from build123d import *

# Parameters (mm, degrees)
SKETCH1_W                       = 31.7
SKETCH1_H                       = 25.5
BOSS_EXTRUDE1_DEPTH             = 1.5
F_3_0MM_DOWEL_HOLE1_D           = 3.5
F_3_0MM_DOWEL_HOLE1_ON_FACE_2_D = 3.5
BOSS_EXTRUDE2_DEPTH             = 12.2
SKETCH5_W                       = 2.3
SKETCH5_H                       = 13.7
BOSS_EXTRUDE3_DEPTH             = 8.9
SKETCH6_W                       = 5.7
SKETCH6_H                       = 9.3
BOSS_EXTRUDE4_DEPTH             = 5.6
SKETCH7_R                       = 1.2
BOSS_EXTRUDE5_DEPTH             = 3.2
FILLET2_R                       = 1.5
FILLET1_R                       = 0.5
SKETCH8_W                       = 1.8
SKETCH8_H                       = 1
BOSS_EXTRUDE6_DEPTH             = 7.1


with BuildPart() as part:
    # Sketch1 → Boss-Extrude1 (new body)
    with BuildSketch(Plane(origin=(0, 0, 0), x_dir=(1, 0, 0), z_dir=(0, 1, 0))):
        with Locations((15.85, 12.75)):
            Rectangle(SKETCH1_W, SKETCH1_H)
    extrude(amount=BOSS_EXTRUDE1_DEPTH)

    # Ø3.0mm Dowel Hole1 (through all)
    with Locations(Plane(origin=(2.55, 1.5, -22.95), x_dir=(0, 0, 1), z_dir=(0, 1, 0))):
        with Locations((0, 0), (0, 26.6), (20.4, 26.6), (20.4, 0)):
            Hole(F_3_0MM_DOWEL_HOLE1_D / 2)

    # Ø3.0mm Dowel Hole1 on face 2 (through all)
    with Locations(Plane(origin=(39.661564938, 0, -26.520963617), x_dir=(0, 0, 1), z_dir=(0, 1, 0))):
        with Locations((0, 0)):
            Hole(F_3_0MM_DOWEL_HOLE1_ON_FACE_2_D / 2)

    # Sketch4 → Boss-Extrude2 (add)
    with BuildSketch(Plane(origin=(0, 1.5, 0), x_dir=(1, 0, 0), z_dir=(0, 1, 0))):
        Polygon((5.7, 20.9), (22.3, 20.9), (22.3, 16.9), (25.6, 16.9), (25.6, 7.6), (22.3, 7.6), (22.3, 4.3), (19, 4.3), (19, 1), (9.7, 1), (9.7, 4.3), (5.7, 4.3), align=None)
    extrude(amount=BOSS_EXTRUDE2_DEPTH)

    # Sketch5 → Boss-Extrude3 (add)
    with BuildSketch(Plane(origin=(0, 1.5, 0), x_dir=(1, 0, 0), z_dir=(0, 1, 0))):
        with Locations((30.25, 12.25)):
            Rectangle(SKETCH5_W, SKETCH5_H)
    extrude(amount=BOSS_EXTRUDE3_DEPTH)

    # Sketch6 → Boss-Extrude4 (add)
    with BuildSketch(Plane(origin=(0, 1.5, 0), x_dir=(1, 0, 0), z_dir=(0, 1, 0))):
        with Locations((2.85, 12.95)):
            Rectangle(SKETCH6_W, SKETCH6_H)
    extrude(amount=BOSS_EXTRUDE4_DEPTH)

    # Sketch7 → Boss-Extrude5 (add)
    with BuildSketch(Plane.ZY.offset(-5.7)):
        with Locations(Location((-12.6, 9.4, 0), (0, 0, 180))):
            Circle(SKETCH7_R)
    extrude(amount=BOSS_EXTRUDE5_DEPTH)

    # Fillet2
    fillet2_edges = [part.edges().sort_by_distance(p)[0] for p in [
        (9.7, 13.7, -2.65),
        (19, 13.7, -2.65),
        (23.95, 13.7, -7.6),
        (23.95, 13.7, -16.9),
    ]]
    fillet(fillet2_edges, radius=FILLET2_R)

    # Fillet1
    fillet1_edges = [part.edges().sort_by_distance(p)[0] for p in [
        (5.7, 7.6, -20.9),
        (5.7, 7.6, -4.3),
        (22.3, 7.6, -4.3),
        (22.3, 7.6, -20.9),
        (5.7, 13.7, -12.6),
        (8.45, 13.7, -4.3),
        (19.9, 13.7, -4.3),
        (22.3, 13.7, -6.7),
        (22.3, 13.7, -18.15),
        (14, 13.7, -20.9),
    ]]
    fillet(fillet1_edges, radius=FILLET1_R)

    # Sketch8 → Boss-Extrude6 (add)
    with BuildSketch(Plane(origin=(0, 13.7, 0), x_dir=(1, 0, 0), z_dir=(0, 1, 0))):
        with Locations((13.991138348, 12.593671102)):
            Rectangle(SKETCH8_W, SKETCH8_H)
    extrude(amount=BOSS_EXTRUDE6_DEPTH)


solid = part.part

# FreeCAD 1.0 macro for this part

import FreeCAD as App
import Part
import Sketcher
from FreeCAD import Vector
Q = App.Units.Quantity


def edges_at(feature, points):
    """Names of the edges that pass closest to the given points."""
    edges = feature.Shape.Edges
    near = lambda p: min(range(len(edges)), key=lambda i: edges[i].distToShape(Part.Vertex(*p))[0])
    return sorted({f"Edge{near(p) + 1}" for p in points})

doc = App.newDocument("Part")
body = doc.addObject("PartDesign::Body", "Body")

sketch1 = body.newObject("Sketcher::SketchObject", "Sketch")
sketch1.AttachmentSupport = (doc.getObject("XZ_Plane"), [""])
sketch1.MapMode = "FlatFace"
sketch1.addGeometry([
    Part.LineSegment(Vector(0, -26, 0), Vector(0, 0, 0)),
    Part.LineSegment(Vector(0, 0, 0), Vector(32, 0, 0)),
    Part.LineSegment(Vector(32, 0, 0), Vector(32, -26, 0)),
    Part.LineSegment(Vector(32, -26, 0), Vector(0, -26, 0)),
], False)
sketch1.addConstraint([
    Sketcher.Constraint("Coincident", 0, 2, 1, 1),
    Sketcher.Constraint("Coincident", 1, 2, 2, 1),
    Sketcher.Constraint("Coincident", 2, 2, 3, 1),
    Sketcher.Constraint("Coincident", 3, 2, 0, 1),
    Sketcher.Constraint("Vertical", 0),
    Sketcher.Constraint("Horizontal", 1),
    Sketcher.Constraint("Vertical", 2),
    Sketcher.Constraint("Horizontal", 3),
    Sketcher.Constraint("Coincident", 0, 2, -1, 1),
    Sketcher.Constraint("DistanceX", 1, 1, 1, 2, Q("31.7 mm")),
    Sketcher.Constraint("DistanceY", 0, 1, 0, 2, Q("25.5 mm")),
])
pad1 = body.newObject("PartDesign::Pad", "Pad")
pad1.Profile = sketch1
pad1.Length = 1.5
pad1.Reversed = True

sketch2 = body.newObject("Sketcher::SketchObject", "Sketch001")
sketch2.AttachmentSupport = (doc.getObject("XZ_Plane"), [""])
sketch2.MapMode = "FlatFace"
sketch2.AttachmentOffset = App.Placement(Vector(0, 0, -1.5), App.Rotation())
sketch2.addGeometry([
    Part.Circle(Vector(2.5, -22.9, 0), Vector(0, 0, 1), 1.8),
    Part.Circle(Vector(29.1, -22.9, 0), Vector(0, 0, 1), 1.8),
    Part.Circle(Vector(29.1, -2.5, 0), Vector(0, 0, 1), 1.8),
    Part.Circle(Vector(2.5, -2.5, 0), Vector(0, 0, 1), 1.8),
], False)
sketch2.addConstraint([
    Sketcher.Constraint("Equal", 0, 1),
    Sketcher.Constraint("Equal", 1, 2),
    Sketcher.Constraint("Equal", 2, 3),
    Sketcher.Constraint("Horizontal", 0, 3, 1, 3),
    Sketcher.Constraint("Horizontal", 2, 3, 3, 3),
    Sketcher.Constraint("Vertical", 1, 3, 2, 3),
    Sketcher.Constraint("Vertical", 0, 3, 3, 3),
    Sketcher.Constraint("Diameter", 0, Q("3.5 mm")),
    Sketcher.Constraint("DistanceX", 0, 3, 1, 3, Q("26.6 mm")),
    Sketcher.Constraint("DistanceY", 1, 3, 2, 3, Q("20.4 mm")),
    Sketcher.Constraint("DistanceX", -1, 1, 0, 3, Q("2.55 mm")),
    Sketcher.Constraint("DistanceY", 0, 3, -1, 1, Q("22.95 mm")),
])
doc.recompute()
hole = body.newObject("PartDesign::Hole", "Hole")
hole.Profile = sketch2
hole.ThreadType = "None"
hole.Diameter = 3.5
hole.DepthType = "ThroughAll"
hole.Reversed = True

sketch3 = body.newObject("Sketcher::SketchObject", "Sketch002")
sketch3.AttachmentSupport = (doc.getObject("XZ_Plane"), [""])
sketch3.MapMode = "FlatFace"
sketch3.addGeometry(Part.Circle(Vector(39.7, -26.5, 0), Vector(0, 0, 1), 1.8), False)
sketch3.addConstraint([
    Sketcher.Constraint("Diameter", 0, Q("3.5 mm")),
    Sketcher.Constraint("DistanceX", -1, 1, 0, 3, Q("39.661565 mm")),
    Sketcher.Constraint("DistanceY", 0, 3, -1, 1, Q("26.520964 mm")),
])
doc.recompute()
hole2 = body.newObject("PartDesign::Hole", "Hole001")
hole2.Profile = sketch3
hole2.ThreadType = "None"
hole2.Diameter = 3.5
hole2.DepthType = "ThroughAll"
hole2.Reversed = True

sketch4 = body.newObject("Sketcher::SketchObject", "Sketch003")
sketch4.AttachmentSupport = (doc.getObject("XZ_Plane"), [""])
sketch4.MapMode = "FlatFace"
sketch4.AttachmentOffset = App.Placement(Vector(0, 0, -1.5), App.Rotation())
sketch4.addGeometry([
    Part.LineSegment(Vector(22.3, -20.9, 0), Vector(5.7, -20.9, 0)),
    Part.LineSegment(Vector(5.7, -20.9, 0), Vector(5.7, -4.3, 0)),
    Part.LineSegment(Vector(5.7, -4.3, 0), Vector(9.7, -4.3, 0)),
    Part.LineSegment(Vector(9.7, -4.3, 0), Vector(9.7, -1, 0)),
    Part.LineSegment(Vector(9.7, -1, 0), Vector(19, -1, 0)),
    Part.LineSegment(Vector(19, -1, 0), Vector(19, -4.3, 0)),
    Part.LineSegment(Vector(19, -4.3, 0), Vector(22.3, -4.3, 0)),
    Part.LineSegment(Vector(22.3, -4.3, 0), Vector(22.3, -7.6, 0)),
    Part.LineSegment(Vector(22.3, -7.6, 0), Vector(25.6, -7.6, 0)),
    Part.LineSegment(Vector(25.6, -7.6, 0), Vector(25.6, -16.9, 0)),
    Part.LineSegment(Vector(25.6, -16.9, 0), Vector(22.3, -16.9, 0)),
    Part.LineSegment(Vector(22.3, -16.9, 0), Vector(22.3, -20.9, 0)),
], False)
sketch4.addConstraint([
    Sketcher.Constraint("Coincident", 0, 2, 1, 1),
    Sketcher.Constraint("Coincident", 1, 2, 2, 1),
    Sketcher.Constraint("Coincident", 2, 2, 3, 1),
    Sketcher.Constraint("Coincident", 3, 2, 4, 1),
    Sketcher.Constraint("Coincident", 4, 2, 5, 1),
    Sketcher.Constraint("Coincident", 5, 2, 6, 1),
    Sketcher.Constraint("Coincident", 6, 2, 7, 1),
    Sketcher.Constraint("Coincident", 7, 2, 8, 1),
    Sketcher.Constraint("Coincident", 8, 2, 9, 1),
    Sketcher.Constraint("Coincident", 9, 2, 10, 1),
    Sketcher.Constraint("Coincident", 10, 2, 11, 1),
    Sketcher.Constraint("Coincident", 11, 2, 0, 1),
    Sketcher.Constraint("Horizontal", 0),
    Sketcher.Constraint("Vertical", 1),
    Sketcher.Constraint("Horizontal", 2),
    Sketcher.Constraint("Vertical", 3),
    Sketcher.Constraint("Horizontal", 4),
    Sketcher.Constraint("Vertical", 5),
    Sketcher.Constraint("Horizontal", 6),
    Sketcher.Constraint("Vertical", 7),
    Sketcher.Constraint("Horizontal", 8),
    Sketcher.Constraint("Vertical", 9),
    Sketcher.Constraint("Horizontal", 10),
    Sketcher.Constraint("Vertical", 11),
    Sketcher.Constraint("Horizontal", 2, 2, 5, 2),
    Sketcher.Constraint("Vertical", 7, 2, 10, 2),
    Sketcher.Constraint("Equal", 6, 8),
    Sketcher.Constraint("Equal", 0, 1),
    Sketcher.Constraint("Equal", 10, 3),
    Sketcher.Constraint("Equal", 5, 7),
    Sketcher.Constraint("Equal", 4, 9),
    Sketcher.Constraint("DistanceX", 2, 1, 2, 2, Q("4 mm")),
    Sketcher.Constraint("DistanceX", 0, 2, 0, 1, Q("16.6 mm")),
    Sketcher.Constraint("DistanceX", 4, 1, 4, 2, Q("9.3 mm")),
    Sketcher.Constraint("DistanceY", 3, 2, -1, 1, Q("1 mm")),
    Sketcher.Constraint("DistanceX", -1, 1, 4, 2, Q("19 mm")),
])
pad2 = body.newObject("PartDesign::Pad", "Pad001")
pad2.Profile = sketch4
pad2.Length = 12.2
pad2.Reversed = True

sketch5 = body.newObject("Sketcher::SketchObject", "Sketch004")
sketch5.AttachmentSupport = (doc.getObject("XZ_Plane"), [""])
sketch5.MapMode = "FlatFace"
sketch5.AttachmentOffset = App.Placement(Vector(0, 0, -1.5), App.Rotation())
sketch5.addGeometry([
    Part.LineSegment(Vector(29.1, -19.1, 0), Vector(29.1, -5.4, 0)),
    Part.LineSegment(Vector(29.1, -5.4, 0), Vector(31.4, -5.4, 0)),
    Part.LineSegment(Vector(31.4, -5.4, 0), Vector(31.4, -19.1, 0)),
    Part.LineSegment(Vector(31.4, -19.1, 0), Vector(29.1, -19.1, 0)),
], False)
sketch5.addConstraint([
    Sketcher.Constraint("Coincident", 0, 2, 1, 1),
    Sketcher.Constraint("Coincident", 1, 2, 2, 1),
    Sketcher.Constraint("Coincident", 2, 2, 3, 1),
    Sketcher.Constraint("Coincident", 3, 2, 0, 1),
    Sketcher.Constraint("Vertical", 0),
    Sketcher.Constraint("Horizontal", 1),
    Sketcher.Constraint("Vertical", 2),
    Sketcher.Constraint("Horizontal", 3),
    Sketcher.Constraint("DistanceX", 1, 1, 1, 2, Q("2.3 mm")),
    Sketcher.Constraint("DistanceY", 0, 1, 0, 2, Q("13.7 mm")),
    Sketcher.Constraint("DistanceX", -1, 1, 0, 2, Q("29.1 mm")),
    Sketcher.Constraint("DistanceY", 0, 2, -1, 1, Q("5.4 mm")),
])
pad3 = body.newObject("PartDesign::Pad", "Pad002")
pad3.Profile = sketch5
pad3.Length = 8.9
pad3.Reversed = True

sketch6 = body.newObject("Sketcher::SketchObject", "Sketch005")
sketch6.AttachmentSupport = (doc.getObject("XZ_Plane"), [""])
sketch6.MapMode = "FlatFace"
sketch6.AttachmentOffset = App.Placement(Vector(0, 0, -1.5), App.Rotation())
sketch6.addGeometry([
    Part.LineSegment(Vector(0, -18, 0), Vector(0, -8, 0)),
    Part.LineSegment(Vector(0, -8, 0), Vector(6, -8, 0)),
    Part.LineSegment(Vector(6, -8, 0), Vector(6, -18, 0)),
    Part.LineSegment(Vector(6, -18, 0), Vector(0, -18, 0)),
], False)
sketch6.addConstraint([
    Sketcher.Constraint("Coincident", 0, 2, 1, 1),
    Sketcher.Constraint("Coincident", 1, 2, 2, 1),
    Sketcher.Constraint("Coincident", 2, 2, 3, 1),
    Sketcher.Constraint("Coincident", 3, 2, 0, 1),
    Sketcher.Constraint("Vertical", 0),
    Sketcher.Constraint("Horizontal", 1),
    Sketcher.Constraint("Vertical", 2),
    Sketcher.Constraint("Horizontal", 3),
    Sketcher.Constraint("PointOnObject", 0, 2, -2),
    Sketcher.Constraint("DistanceX", 1, 1, 1, 2, Q("5.7 mm")),
    Sketcher.Constraint("DistanceY", 0, 1, 0, 2, Q("9.3 mm")),
    Sketcher.Constraint("DistanceY", 0, 2, -1, 1, Q("8.3 mm")),
])
pad4 = body.newObject("PartDesign::Pad", "Pad003")
pad4.Profile = sketch6
pad4.Length = 5.6
pad4.Reversed = True

sketch7 = body.newObject("Sketcher::SketchObject", "Sketch006")
sketch7.AttachmentSupport = (doc.getObject("YZ_Plane"), [""])
sketch7.MapMode = "FlatFace"
sketch7.AttachmentOffset = App.Placement(Vector(0, 0, 5.7), App.Rotation())
sketch7.addGeometry(Part.Circle(Vector(9.4, -12.6, 0), Vector(0, 0, 1), 1.2), False)
sketch7.addConstraint([
    Sketcher.Constraint("Diameter", 0, Q("2.4 mm")),
    Sketcher.Constraint("DistanceX", -1, 1, 0, 3, Q("9.4 mm")),
    Sketcher.Constraint("DistanceY", 0, 3, -1, 1, Q("12.6 mm")),
])
pad5 = body.newObject("PartDesign::Pad", "Pad004")
pad5.Profile = sketch7
pad5.Length = 3.2
pad5.Reversed = True
doc.recompute()

fillet = body.newObject("PartDesign::Fillet", "Fillet")
fillet.Base = (pad5, edges_at(pad5, [
    (9.7, 13.7, -2.65),
    (19, 13.7, -2.65),
    (23.95, 13.7, -7.6),
    (23.95, 13.7, -16.9),
]))
fillet.Radius = 1.5
doc.recompute()

fillet2 = body.newObject("PartDesign::Fillet", "Fillet001")
fillet2.Base = (fillet, edges_at(fillet, [
    (5.7, 7.6, -20.9),
    (5.7, 7.6, -4.3),
    (22.3, 7.6, -4.3),
    (22.3, 7.6, -20.9),
    (5.7, 13.7, -12.6),
    (8.45, 13.7, -4.3),
    (19.9, 13.7, -4.3),
    (22.3, 13.7, -6.7),
    (22.3, 13.7, -18.15),
    (14, 13.7, -20.9),
]))
fillet2.Radius = 0.5

sketch8 = body.newObject("Sketcher::SketchObject", "Sketch007")
sketch8.AttachmentSupport = (doc.getObject("XZ_Plane"), [""])
sketch8.MapMode = "FlatFace"
sketch8.AttachmentOffset = App.Placement(Vector(0, 0, -13.7), App.Rotation())
sketch8.addGeometry([
    Part.LineSegment(Vector(13.1, -13.1, 0), Vector(13.1, -12.1, 0)),
    Part.LineSegment(Vector(13.1, -12.1, 0), Vector(14.9, -12.1, 0)),
    Part.LineSegment(Vector(14.9, -12.1, 0), Vector(14.9, -13.1, 0)),
    Part.LineSegment(Vector(14.9, -13.1, 0), Vector(13.1, -13.1, 0)),
], False)
sketch8.addConstraint([
    Sketcher.Constraint("Coincident", 0, 2, 1, 1),
    Sketcher.Constraint("Coincident", 1, 2, 2, 1),
    Sketcher.Constraint("Coincident", 2, 2, 3, 1),
    Sketcher.Constraint("Coincident", 3, 2, 0, 1),
    Sketcher.Constraint("Vertical", 0),
    Sketcher.Constraint("Horizontal", 1),
    Sketcher.Constraint("Vertical", 2),
    Sketcher.Constraint("Horizontal", 3),
    Sketcher.Constraint("DistanceY", 0, 1, 0, 2, Q("1 mm")),
    Sketcher.Constraint("DistanceX", 1, 1, 1, 2, Q("1.8 mm")),
    Sketcher.Constraint("DistanceX", -1, 1, 0, 2, Q("13.091138 mm")),
    Sketcher.Constraint("DistanceY", 0, 2, -1, 1, Q("12.093671 mm")),
])
pad6 = body.newObject("PartDesign::Pad", "Pad005")
pad6.Profile = sketch8
pad6.Length = 7.1
pad6.Reversed = True

doc.recompute()
